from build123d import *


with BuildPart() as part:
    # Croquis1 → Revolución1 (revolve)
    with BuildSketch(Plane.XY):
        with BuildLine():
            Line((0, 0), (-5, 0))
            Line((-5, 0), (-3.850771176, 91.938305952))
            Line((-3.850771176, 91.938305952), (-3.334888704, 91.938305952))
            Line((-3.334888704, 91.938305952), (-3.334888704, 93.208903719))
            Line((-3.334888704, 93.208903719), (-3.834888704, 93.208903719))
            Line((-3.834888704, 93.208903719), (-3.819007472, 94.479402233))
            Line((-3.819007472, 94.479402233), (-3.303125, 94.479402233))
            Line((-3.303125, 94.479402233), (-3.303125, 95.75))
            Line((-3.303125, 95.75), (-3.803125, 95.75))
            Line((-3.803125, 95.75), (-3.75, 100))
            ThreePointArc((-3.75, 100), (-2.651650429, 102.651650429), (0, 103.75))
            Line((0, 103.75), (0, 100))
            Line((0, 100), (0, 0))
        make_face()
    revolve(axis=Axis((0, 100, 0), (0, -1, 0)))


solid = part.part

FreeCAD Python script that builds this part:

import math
import FreeCAD as App
import Part
import Sketcher
Q = App.Units.Quantity

doc = App.newDocument("Part")
params = doc.addObject("Spreadsheet::Sheet", "Params")
for row, (alias, value) in enumerate([
    ("sketch1_width", "5 mm"),
    ("sketch1_radius", "3.75 mm"),
    ("sketch1_width2", "0.5 mm"),
    ("revolution_angle", "360 deg"),
], start=1):
    params.set(f"A{row}", alias)
    params.set(f"B{row}", "=" + value)
    params.setAlias(f"B{row}", alias)

body = doc.addObject("PartDesign::Body", "Body")

# Sketch on XY plane
sketch1 = body.newObject("Sketcher::SketchObject", "Sketch")
sketch1.AttachmentSupport = (doc.getObject("XY_Plane"), [""])
sketch1.MapMode = "FlatFace"
sketch1.addGeometry([
    Part.LineSegment(App.Vector(-5, 0, 0), App.Vector(0, 0, 0)),  # 0
    Part.LineSegment(App.Vector(0, 0, 0), App.Vector(0, 103.8, 0)),  # 1
    Part.ArcOfCircle(Part.Circle(App.Vector(0, 100, 0), App.Vector(0, 0, 1), 3.8), math.radians(90), math.radians(180)),  # 2
    Part.LineSegment(App.Vector(-3.8, 100, 0), App.Vector(-3.8, 95.8, 0)),  # 3
    Part.LineSegment(App.Vector(-3.8, 95.8, 0), App.Vector(-3.3, 95.8, 0)),  # 4
    Part.LineSegment(App.Vector(-3.3, 95.8, 0), App.Vector(-3.3, 94.5, 0)),  # 5
    Part.LineSegment(App.Vector(-3.3, 94.5, 0), App.Vector(-3.8, 94.5, 0)),  # 6
    Part.LineSegment(App.Vector(-3.8, 94.5, 0), App.Vector(-3.8, 93.2, 0)),  # 7
    Part.LineSegment(App.Vector(-3.8, 93.2, 0), App.Vector(-3.3, 93.2, 0)),  # 8
    Part.LineSegment(App.Vector(-3.3, 93.2, 0), App.Vector(-3.3, 91.9, 0)),  # 9
    Part.LineSegment(App.Vector(-3.3, 91.9, 0), App.Vector(-3.9, 91.9, 0)),  # 10
    Part.LineSegment(App.Vector(-3.9, 91.9, 0), App.Vector(-5, 0, 0)),  # 11
], False)
sketch1.addConstraint([
    Sketcher.Constraint("Coincident", 0, 2, 1, 1),
    Sketcher.Constraint("Coincident", 1, 2, 2, 1),
    Sketcher.Constraint("Coincident", 2, 2, 3, 1),
    Sketcher.Constraint("Coincident", 3, 2, 4, 1),
    Sketcher.Constraint("Coincident", 4, 2, 5, 1),
    Sketcher.Constraint("Coincident", 5, 2, 6, 1),
    Sketcher.Constraint("Coincident", 6, 2, 7, 1),
    Sketcher.Constraint("Coincident", 7, 2, 8, 1),
    Sketcher.Constraint("Coincident", 8, 2, 9, 1),
    Sketcher.Constraint("Coincident", 9, 2, 10, 1),
    Sketcher.Constraint("Coincident", 10, 2, 11, 1),
    Sketcher.Constraint("Coincident", 11, 2, 0, 1),
    Sketcher.Constraint("Horizontal", 0),
    Sketcher.Constraint("Vertical", 1),
    Sketcher.Constraint("Horizontal", 4),
    Sketcher.Constraint("Vertical", 5),
    Sketcher.Constraint("Horizontal", 6),
    Sketcher.Constraint("Horizontal", 8),
    Sketcher.Constraint("Vertical", 9),
    Sketcher.Constraint("Horizontal", 10),
    Sketcher.Constraint("Coincident", 0, 2, -1, 1),
    Sketcher.Constraint("PointOnObject", 2, 3, -2),
    Sketcher.Constraint("Parallel", 3, 7),
    Sketcher.Constraint("Parallel", 7, 11),
    Sketcher.Constraint("Equal", 4, 8),
    Sketcher.Constraint("Equal", 6, 10),
    Sketcher.Constraint("Equal", 5, 9),
    Sketcher.Constraint("DistanceX", 0, 1, 0, 2, Q("5 mm")),
    Sketcher.Constraint("Radius", 2, Q("3.75 mm")),
    Sketcher.Constraint("DistanceX", 4, 1, 4, 2, Q("0.5 mm")),
    Sketcher.Constraint("DistanceY", -1, 1, 2, 3, Q("100 mm")),
    Sketcher.Constraint("DistanceY", -1, 1, 2, 2, Q("100 mm")),
    Sketcher.Constraint("DistanceY", 3, 2, 1, 2, Q("8 mm")),
    Sketcher.Constraint("DistanceY", 7, 2, 6, 2, Q("1.270499 mm")),
    Sketcher.Constraint("Distance", 11, Q("91.945488 mm")),
    Sketcher.Constraint("DistanceX", 6, 2, 6, 1, Q("0.515882 mm")),
])
sketch1.setExpression("Constraints[27]", "Params.sketch1_width")
sketch1.setExpression("Constraints[28]", "Params.sketch1_radius")
sketch1.setExpression("Constraints[29]", "Params.sketch1_width2")
revolution = body.newObject("PartDesign::Revolution", "Revolution")
revolution.Profile = sketch1
revolution.ReferenceAxis = (sketch1, ["V_Axis"])
revolution.setExpression("Angle", "Params.revolution_angle")

doc.recompute()
